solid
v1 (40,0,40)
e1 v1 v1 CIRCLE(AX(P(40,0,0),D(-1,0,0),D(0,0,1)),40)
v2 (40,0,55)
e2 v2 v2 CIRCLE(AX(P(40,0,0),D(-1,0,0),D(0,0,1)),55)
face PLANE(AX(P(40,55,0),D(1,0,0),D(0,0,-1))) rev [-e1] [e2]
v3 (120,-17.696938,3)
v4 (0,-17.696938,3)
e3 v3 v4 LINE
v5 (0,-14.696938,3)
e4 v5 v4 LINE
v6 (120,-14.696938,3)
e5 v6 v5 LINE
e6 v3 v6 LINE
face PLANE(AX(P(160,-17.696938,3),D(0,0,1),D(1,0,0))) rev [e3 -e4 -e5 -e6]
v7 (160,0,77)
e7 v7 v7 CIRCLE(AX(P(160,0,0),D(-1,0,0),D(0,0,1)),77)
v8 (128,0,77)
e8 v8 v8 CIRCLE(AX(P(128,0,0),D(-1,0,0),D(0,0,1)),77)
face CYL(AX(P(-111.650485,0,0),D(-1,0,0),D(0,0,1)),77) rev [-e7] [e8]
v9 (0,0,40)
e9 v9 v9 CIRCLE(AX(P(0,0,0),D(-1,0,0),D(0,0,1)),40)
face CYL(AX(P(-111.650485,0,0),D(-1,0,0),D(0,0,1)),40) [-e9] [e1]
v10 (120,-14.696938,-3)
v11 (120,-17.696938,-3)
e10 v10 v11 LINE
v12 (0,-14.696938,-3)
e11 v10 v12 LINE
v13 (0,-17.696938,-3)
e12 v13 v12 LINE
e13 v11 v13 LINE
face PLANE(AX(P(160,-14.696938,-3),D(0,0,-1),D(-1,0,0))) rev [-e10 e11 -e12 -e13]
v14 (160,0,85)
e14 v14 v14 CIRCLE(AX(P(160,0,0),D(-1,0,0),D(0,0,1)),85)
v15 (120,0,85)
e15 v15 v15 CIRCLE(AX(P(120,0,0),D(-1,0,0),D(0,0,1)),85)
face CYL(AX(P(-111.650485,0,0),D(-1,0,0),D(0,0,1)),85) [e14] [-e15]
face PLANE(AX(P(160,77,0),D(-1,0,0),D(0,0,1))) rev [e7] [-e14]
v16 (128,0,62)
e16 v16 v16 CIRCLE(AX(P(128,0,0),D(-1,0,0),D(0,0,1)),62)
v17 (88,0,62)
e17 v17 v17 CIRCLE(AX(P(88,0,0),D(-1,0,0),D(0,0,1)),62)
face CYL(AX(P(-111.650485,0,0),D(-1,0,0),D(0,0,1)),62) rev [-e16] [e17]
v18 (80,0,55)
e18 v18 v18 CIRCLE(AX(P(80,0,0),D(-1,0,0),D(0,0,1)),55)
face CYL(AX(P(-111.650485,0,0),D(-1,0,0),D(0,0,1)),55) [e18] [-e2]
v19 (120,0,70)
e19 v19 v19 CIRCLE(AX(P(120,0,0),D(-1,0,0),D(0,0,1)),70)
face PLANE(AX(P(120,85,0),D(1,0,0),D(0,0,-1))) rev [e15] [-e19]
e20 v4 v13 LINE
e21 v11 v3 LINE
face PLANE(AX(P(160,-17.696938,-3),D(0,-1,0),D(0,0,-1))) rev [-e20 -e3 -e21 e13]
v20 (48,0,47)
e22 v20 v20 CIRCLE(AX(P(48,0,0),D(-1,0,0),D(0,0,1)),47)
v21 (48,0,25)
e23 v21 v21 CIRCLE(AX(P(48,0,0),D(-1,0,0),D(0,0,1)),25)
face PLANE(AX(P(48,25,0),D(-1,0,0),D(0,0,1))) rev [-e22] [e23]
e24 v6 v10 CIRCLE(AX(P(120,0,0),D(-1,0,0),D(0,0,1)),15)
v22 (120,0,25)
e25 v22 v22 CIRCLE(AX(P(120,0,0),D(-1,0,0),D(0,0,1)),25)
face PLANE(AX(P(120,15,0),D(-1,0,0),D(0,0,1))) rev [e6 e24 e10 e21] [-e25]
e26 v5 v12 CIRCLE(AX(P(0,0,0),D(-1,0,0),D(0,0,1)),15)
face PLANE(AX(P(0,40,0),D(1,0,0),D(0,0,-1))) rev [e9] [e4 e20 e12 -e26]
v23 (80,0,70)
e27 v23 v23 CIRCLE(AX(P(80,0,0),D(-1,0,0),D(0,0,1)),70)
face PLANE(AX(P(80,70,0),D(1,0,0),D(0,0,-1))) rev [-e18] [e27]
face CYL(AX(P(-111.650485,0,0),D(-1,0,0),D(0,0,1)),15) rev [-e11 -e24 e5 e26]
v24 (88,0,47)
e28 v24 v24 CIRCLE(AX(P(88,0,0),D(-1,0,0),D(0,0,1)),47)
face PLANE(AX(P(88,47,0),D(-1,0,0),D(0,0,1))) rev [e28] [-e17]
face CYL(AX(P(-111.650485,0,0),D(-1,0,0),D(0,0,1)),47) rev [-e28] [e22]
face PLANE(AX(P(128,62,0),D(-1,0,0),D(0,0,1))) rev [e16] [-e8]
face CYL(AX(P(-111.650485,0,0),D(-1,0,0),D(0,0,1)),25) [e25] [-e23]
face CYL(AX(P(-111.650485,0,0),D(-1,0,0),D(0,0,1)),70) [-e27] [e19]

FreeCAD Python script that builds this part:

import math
import FreeCAD as App
import Part
import Sketcher
Q = App.Units.Quantity

doc = App.newDocument("Part")
body = doc.addObject("PartDesign::Body", "Body")

# Sketch on XY plane
sketch1 = doc.addObject("Sketcher::SketchObject", "Sketch")
body.addObject(sketch1)
sketch1.AttachmentSupport = (doc.XY_Plane, [""])
sketch1.MapMode = "FlatFace"
sketch1.addGeometry(Part.LineSegment(App.Vector(0, 15, 0), App.Vector(120, 15, 0)), False)
sketch1.addGeometry(Part.LineSegment(App.Vector(120, 15, 0), App.Vector(120, 25, 0)), False)
sketch1.addGeometry(Part.LineSegment(App.Vector(120, 25, 0), App.Vector(48, 25, 0)), False)
sketch1.addGeometry(Part.LineSegment(App.Vector(48, 25, 0), App.Vector(48, 47, 0)), False)
sketch1.addGeometry(Part.LineSegment(App.Vector(48, 47, 0), App.Vector(88, 47, 0)), False)
sketch1.addGeometry(Part.LineSegment(App.Vector(88, 47, 0), App.Vector(88, 62, 0)), False)
sketch1.addGeometry(Part.LineSegment(App.Vector(88, 62, 0), App.Vector(128, 62, 0)), False)
sketch1.addGeometry(Part.LineSegment(App.Vector(128, 62, 0), App.Vector(128, 77, 0)), False)
sketch1.addGeometry(Part.LineSegment(App.Vector(128, 77, 0), App.Vector(160, 77, 0)), False)
sketch1.addGeometry(Part.LineSegment(App.Vector(160, 77, 0), App.Vector(160, 85, 0)), False)
sketch1.addGeometry(Part.LineSegment(App.Vector(160, 85, 0), App.Vector(120, 85, 0)), False)
sketch1.addGeometry(Part.LineSegment(App.Vector(120, 85, 0), App.Vector(120, 70, 0)), False)
sketch1.addGeometry(Part.LineSegment(App.Vector(120, 70, 0), App.Vector(80, 70, 0)), False)
sketch1.addGeometry(Part.LineSegment(App.Vector(80, 70, 0), App.Vector(80, 55, 0)), False)
sketch1.addGeometry(Part.LineSegment(App.Vector(80, 55, 0), App.Vector(40, 55, 0)), False)
sketch1.addGeometry(Part.LineSegment(App.Vector(40, 55, 0), App.Vector(40, 40, 0)), False)
sketch1.addGeometry(Part.LineSegment(App.Vector(40, 40, 0), App.Vector(0, 40, 0)), False)
sketch1.addGeometry(Part.LineSegment(App.Vector(0, 40, 0), App.Vector(0, 15, 0)), False)
sketch1.addConstraint(Sketcher.Constraint("Coincident", 0, 2, 1, 1))
sketch1.addConstraint(Sketcher.Constraint("Coincident", 1, 2, 2, 1))
sketch1.addConstraint(Sketcher.Constraint("Coincident", 2, 2, 3, 1))
sketch1.addConstraint(Sketcher.Constraint("Coincident", 3, 2, 4, 1))
sketch1.addConstraint(Sketcher.Constraint("Coincident", 4, 2, 5, 1))
sketch1.addConstraint(Sketcher.Constraint("Coincident", 5, 2, 6, 1))
sketch1.addConstraint(Sketcher.Constraint("Coincident", 6, 2, 7, 1))
sketch1.addConstraint(Sketcher.Constraint("Coincident", 7, 2, 8, 1))
sketch1.addConstraint(Sketcher.Constraint("Coincident", 8, 2, 9, 1))
sketch1.addConstraint(Sketcher.Constraint("Coincident", 9, 2, 10, 1))
sketch1.addConstraint(Sketcher.Constraint("Coincident", 10, 2, 11, 1))
sketch1.addConstraint(Sketcher.Constraint("Coincident", 11, 2, 12, 1))
sketch1.addConstraint(Sketcher.Constraint("Coincident", 12, 2, 13, 1))
sketch1.addConstraint(Sketcher.Constraint("Coincident", 13, 2, 14, 1))
sketch1.addConstraint(Sketcher.Constraint("Coincident", 14, 2, 15, 1))
sketch1.addConstraint(Sketcher.Constraint("Coincident", 15, 2, 16, 1))
sketch1.addConstraint(Sketcher.Constraint("Coincident", 16, 2, 17, 1))
sketch1.addConstraint(Sketcher.Constraint("Coincident", 17, 2, 0, 1))
sketch1.addConstraint(Sketcher.Constraint("Horizontal", 0))
sketch1.addConstraint(Sketcher.Constraint("Vertical", 1))
sketch1.addConstraint(Sketcher.Constraint("Horizontal", 2))
sketch1.addConstraint(Sketcher.Constraint("Vertical", 3))
sketch1.addConstraint(Sketcher.Constraint("Horizontal", 4))
sketch1.addConstraint(Sketcher.Constraint("Vertical", 5))
sketch1.addConstraint(Sketcher.Constraint("Horizontal", 6))
sketch1.addConstraint(Sketcher.Constraint("Vertical", 7))
sketch1.addConstraint(Sketcher.Constraint("Horizontal", 8))
sketch1.addConstraint(Sketcher.Constraint("Vertical", 9))
sketch1.addConstraint(Sketcher.Constraint("Horizontal", 10))
sketch1.addConstraint(Sketcher.Constraint("Vertical", 11))
sketch1.addConstraint(Sketcher.Constraint("Horizontal", 12))
sketch1.addConstraint(Sketcher.Constraint("Vertical", 13))
sketch1.addConstraint(Sketcher.Constraint("Horizontal", 14))
sketch1.addConstraint(Sketcher.Constraint("Vertical", 15))
sketch1.addConstraint(Sketcher.Constraint("Horizontal", 16))
sketch1.addConstraint(Sketcher.Constraint("Vertical", 17))
sketch1.addConstraint(Sketcher.Constraint("PointOnObject", 16, 2, -2))
sketch1.addConstraint(Sketcher.Constraint("Vertical", 1, 2, 10, 2))
sketch1.addConstraint(Sketcher.Constraint("Equal", 4, 6))
sketch1.addConstraint(Sketcher.Constraint("Equal", 6, 10))
sketch1.addConstraint(Sketcher.Constraint("Equal", 10, 12))
sketch1.addConstraint(Sketcher.Constraint("Equal", 12, 14))
sketch1.addConstraint(Sketcher.Constraint("Equal", 14, 16))
sketch1.addConstraint(Sketcher.Constraint("Equal", 5, 7))
sketch1.addConstraint(Sketcher.Constraint("Equal", 7, 11))
sketch1.addConstraint(Sketcher.Constraint("Equal", 11, 13))
sketch1.addConstraint(Sketcher.Constraint("Equal", 13, 15))
sketch1.addConstraint(Sketcher.Constraint("DistanceX", 0, 1, 0, 2, Q("120 mm")))
sketch1.addConstraint(Sketcher.Constraint("DistanceX", 2, 2, 2, 1, Q("72 mm")))
sketch1.addConstraint(Sketcher.Constraint("DistanceY", 1, 1, 1, 2, Q("10 mm")))
sketch1.addConstraint(Sketcher.Constraint("DistanceY", 3, 1, 3, 2, Q("22 mm")))
sketch1.addConstraint(Sketcher.Constraint("DistanceY", 5, 1, 5, 2, Q("15 mm")))
sketch1.addConstraint(Sketcher.Constraint("DistanceY", 9, 1, 9, 2, Q("8 mm")))
sketch1.addConstraint(Sketcher.Constraint("DistanceY", -1, 1, 0, 2, Q("15 mm")))
revolution = doc.addObject("PartDesign::Revolution", "Revolution")
body.addObject(revolution)
revolution.Profile = sketch1
revolution.ReferenceAxis = (sketch1, ["H_Axis"])
revolution.Angle = 360

# Sketch on YZ plane
sketch2 = doc.addObject("Sketcher::SketchObject", "Sketch001")
body.addObject(sketch2)
sketch2.AttachmentSupport = (doc.YZ_Plane, [""])
sketch2.MapMode = "FlatFace"
sketch2.addGeometry(Part.LineSegment(App.Vector(-14.7, -3, 0), App.Vector(-17.7, -3, 0)), False)
sketch2.addGeometry(Part.LineSegment(App.Vector(-17.7, -3, 0), App.Vector(-17.7, 3, 0)), False)
sketch2.addGeometry(Part.LineSegment(App.Vector(-17.7, 3, 0), App.Vector(-14.7, 3, 0)), False)
sketch2.addGeometry(Part.ArcOfCircle(Part.Circle(App.Vector(0, 0, 0), App.Vector(0, 0, 1), 15), math.radians(-168), math.radians(168)), False)
sketch2.addConstraint(Sketcher.Constraint("Coincident", 0, 2, 1, 1))
sketch2.addConstraint(Sketcher.Constraint("Coincident", 1, 2, 2, 1))
sketch2.addConstraint(Sketcher.Constraint("Coincident", 2, 2, 3, 2))
sketch2.addConstraint(Sketcher.Constraint("Coincident", 3, 1, 0, 1))
sketch2.addConstraint(Sketcher.Constraint("Horizontal", 0))
sketch2.addConstraint(Sketcher.Constraint("Vertical", 1))
sketch2.addConstraint(Sketcher.Constraint("Horizontal", 2))
sketch2.addConstraint(Sketcher.Constraint("Coincident", 3, 3, -1, 1))
sketch2.addConstraint(Sketcher.Constraint("Vertical", 2, 2, 3, 1))
sketch2.addConstraint(Sketcher.Constraint("Radius", 3, Q("15 mm")))
sketch2.addConstraint(Sketcher.Constraint("DistanceX", 0, 2, 0, 1, Q("3 mm")))
sketch2.addConstraint(Sketcher.Constraint("DistanceY", 1, 1, 1, 2, Q("6 mm")))
pocket1 = doc.addObject("PartDesign::Pocket", "Pocket")
body.addObject(pocket1)
pocket1.Profile = sketch2
pocket1.Type = "ThroughAll"
pocket1.Midplane = True

doc.recompute()
